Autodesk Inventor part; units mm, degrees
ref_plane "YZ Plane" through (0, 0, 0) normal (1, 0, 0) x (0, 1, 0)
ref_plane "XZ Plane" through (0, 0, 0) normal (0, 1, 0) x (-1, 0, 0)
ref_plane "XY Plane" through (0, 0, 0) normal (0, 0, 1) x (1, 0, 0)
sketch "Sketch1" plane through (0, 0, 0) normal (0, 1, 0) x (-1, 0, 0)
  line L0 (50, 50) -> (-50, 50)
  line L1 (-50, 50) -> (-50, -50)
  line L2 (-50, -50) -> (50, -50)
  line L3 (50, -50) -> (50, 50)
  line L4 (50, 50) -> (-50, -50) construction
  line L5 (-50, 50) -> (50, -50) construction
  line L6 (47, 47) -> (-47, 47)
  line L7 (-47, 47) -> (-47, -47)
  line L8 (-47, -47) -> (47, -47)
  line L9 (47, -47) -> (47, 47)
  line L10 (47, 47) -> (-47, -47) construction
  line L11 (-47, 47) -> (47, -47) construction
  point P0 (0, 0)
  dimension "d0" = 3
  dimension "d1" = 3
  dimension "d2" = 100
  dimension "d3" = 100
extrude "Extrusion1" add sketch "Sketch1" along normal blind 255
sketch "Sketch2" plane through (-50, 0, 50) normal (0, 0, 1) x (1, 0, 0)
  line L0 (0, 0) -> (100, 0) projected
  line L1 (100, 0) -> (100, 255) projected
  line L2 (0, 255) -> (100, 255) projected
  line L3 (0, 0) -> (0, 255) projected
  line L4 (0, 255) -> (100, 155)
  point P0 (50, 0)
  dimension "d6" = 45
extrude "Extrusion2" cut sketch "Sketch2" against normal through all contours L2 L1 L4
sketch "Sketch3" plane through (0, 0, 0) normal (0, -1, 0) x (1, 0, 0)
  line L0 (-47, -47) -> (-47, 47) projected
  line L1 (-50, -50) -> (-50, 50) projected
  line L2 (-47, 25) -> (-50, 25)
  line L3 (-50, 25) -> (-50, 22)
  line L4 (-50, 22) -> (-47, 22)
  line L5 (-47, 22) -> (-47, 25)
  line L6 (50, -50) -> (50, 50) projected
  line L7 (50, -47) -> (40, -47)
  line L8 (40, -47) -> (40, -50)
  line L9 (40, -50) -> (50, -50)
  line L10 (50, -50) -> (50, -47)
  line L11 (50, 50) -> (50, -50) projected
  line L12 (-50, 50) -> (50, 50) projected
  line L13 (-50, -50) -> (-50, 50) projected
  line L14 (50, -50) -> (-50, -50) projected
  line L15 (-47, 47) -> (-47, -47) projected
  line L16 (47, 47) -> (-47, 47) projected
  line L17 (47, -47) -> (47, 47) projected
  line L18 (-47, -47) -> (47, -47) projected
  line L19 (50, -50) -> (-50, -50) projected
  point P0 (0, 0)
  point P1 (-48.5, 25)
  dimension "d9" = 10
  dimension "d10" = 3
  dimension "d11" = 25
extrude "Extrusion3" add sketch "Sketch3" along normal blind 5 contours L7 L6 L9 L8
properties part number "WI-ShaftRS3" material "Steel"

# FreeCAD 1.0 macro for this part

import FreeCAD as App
import Part
import Sketcher
from FreeCAD import Vector


def add_polygon(sketch, points):
    """Adds a closed chain of lines whose ends are joined by coincident constraints."""
    first, n = sketch.GeometryCount, len(points)
    for a, b in zip(points, points[1:] + points[:1]):
        sketch.addGeometry(Part.LineSegment(App.Vector(*a, 0), App.Vector(*b, 0)), False)
    for i in range(n):
        sketch.addConstraint(Sketcher.Constraint("Coincident", first + i, 2, first + (i + 1) % n, 1))

doc = App.newDocument("Part")
body = doc.addObject("PartDesign::Body", "Body")

# Sketch on XZ plane
sketch1 = doc.addObject("Sketcher::SketchObject", "Sketch")
body.addObject(sketch1)
sketch1.AttachmentSupport = (doc.XZ_Plane, [""])
sketch1.MapMode = "FlatFace"
add_polygon(sketch1, [(-50, -50), (-50, 50), (50, 50), (50, -50)])  # lines 0-3
add_polygon(sketch1, [(47, 47), (-47, 47), (-47, -47), (47, -47)])  # lines 4-7
sketch1.addConstraint([
    Sketcher.Constraint("Vertical", 0),
    Sketcher.Constraint("Horizontal", 1),
    Sketcher.Constraint("Vertical", 2),
    Sketcher.Constraint("Horizontal", 3),
    Sketcher.Constraint("Horizontal", 4),
    Sketcher.Constraint("Vertical", 5),
    Sketcher.Constraint("Horizontal", 6),
    Sketcher.Constraint("Vertical", 7),
    Sketcher.Constraint("Symmetric", 0, 2, 2, 2, -1, 1),
    Sketcher.Constraint("Symmetric", 4, 2, 6, 2, -1, 1),
    Sketcher.Constraint("Equal", 3, 0),
    Sketcher.Constraint("Equal", 6, 5),
    Sketcher.Constraint("DistanceX", 1, 1, 1, 2, 100.0),
    Sketcher.Constraint("DistanceX", 0, 2, 4, 2, 3.0),
])
pad1 = doc.addObject("PartDesign::Pad", "Pad")
body.addObject(pad1)
pad1.Profile = sketch1
pad1.Length = 255
pad1.Reversed = True

# Sketch on XY plane
sketch2 = doc.addObject("Sketcher::SketchObject", "Sketch001")
body.addObject(sketch2)
sketch2.AttachmentSupport = (doc.XY_Plane, [""])
sketch2.MapMode = "FlatFace"
sketch2.AttachmentOffset = App.Placement(Vector(0, 0, 50), App.Rotation())
add_polygon(sketch2, [(50, 255), (-50, 255), (50, 155)])  # lines 0-2
sketch2.addConstraint([
    Sketcher.Constraint("Horizontal", 0),
    Sketcher.Constraint("Vertical", 2),
    Sketcher.Constraint("Equal", 0, 2),
    Sketcher.Constraint("DistanceX", 0, 2, 0, 1, 100.0),
    Sketcher.Constraint("DistanceX", 0, 2, -1, 1, 50.0),
    Sketcher.Constraint("DistanceY", -1, 1, 0, 2, 255.0),
])
pocket1 = doc.addObject("PartDesign::Pocket", "Pocket")
body.addObject(pocket1)
pocket1.Profile = sketch2
pocket1.Type = "ThroughAll"

# Sketch on XZ plane
sketch3 = doc.addObject("Sketcher::SketchObject", "Sketch002")
body.addObject(sketch3)
sketch3.AttachmentSupport = (doc.XZ_Plane, [""])
sketch3.MapMode = "FlatFace"
add_polygon(sketch3, [(50, -47), (40, -47), (40, -50), (50, -50)])  # lines 0-3
sketch3.addConstraint([
    Sketcher.Constraint("Horizontal", 0),
    Sketcher.Constraint("Vertical", 1),
    Sketcher.Constraint("Horizontal", 2),
    Sketcher.Constraint("Vertical", 3),
    Sketcher.Constraint("DistanceX", 0, 2, 0, 1, 10.0),
    Sketcher.Constraint("DistanceY", 1, 2, 1, 1, 3.0),
    Sketcher.Constraint("DistanceX", -1, 1, 0, 2, 40.0),
    Sketcher.Constraint("DistanceY", 0, 2, -1, 1, 47.0),
])
pad2 = doc.addObject("PartDesign::Pad", "Pad001")
body.addObject(pad2)
pad2.Profile = sketch3
pad2.Length = 5

doc.recompute()
